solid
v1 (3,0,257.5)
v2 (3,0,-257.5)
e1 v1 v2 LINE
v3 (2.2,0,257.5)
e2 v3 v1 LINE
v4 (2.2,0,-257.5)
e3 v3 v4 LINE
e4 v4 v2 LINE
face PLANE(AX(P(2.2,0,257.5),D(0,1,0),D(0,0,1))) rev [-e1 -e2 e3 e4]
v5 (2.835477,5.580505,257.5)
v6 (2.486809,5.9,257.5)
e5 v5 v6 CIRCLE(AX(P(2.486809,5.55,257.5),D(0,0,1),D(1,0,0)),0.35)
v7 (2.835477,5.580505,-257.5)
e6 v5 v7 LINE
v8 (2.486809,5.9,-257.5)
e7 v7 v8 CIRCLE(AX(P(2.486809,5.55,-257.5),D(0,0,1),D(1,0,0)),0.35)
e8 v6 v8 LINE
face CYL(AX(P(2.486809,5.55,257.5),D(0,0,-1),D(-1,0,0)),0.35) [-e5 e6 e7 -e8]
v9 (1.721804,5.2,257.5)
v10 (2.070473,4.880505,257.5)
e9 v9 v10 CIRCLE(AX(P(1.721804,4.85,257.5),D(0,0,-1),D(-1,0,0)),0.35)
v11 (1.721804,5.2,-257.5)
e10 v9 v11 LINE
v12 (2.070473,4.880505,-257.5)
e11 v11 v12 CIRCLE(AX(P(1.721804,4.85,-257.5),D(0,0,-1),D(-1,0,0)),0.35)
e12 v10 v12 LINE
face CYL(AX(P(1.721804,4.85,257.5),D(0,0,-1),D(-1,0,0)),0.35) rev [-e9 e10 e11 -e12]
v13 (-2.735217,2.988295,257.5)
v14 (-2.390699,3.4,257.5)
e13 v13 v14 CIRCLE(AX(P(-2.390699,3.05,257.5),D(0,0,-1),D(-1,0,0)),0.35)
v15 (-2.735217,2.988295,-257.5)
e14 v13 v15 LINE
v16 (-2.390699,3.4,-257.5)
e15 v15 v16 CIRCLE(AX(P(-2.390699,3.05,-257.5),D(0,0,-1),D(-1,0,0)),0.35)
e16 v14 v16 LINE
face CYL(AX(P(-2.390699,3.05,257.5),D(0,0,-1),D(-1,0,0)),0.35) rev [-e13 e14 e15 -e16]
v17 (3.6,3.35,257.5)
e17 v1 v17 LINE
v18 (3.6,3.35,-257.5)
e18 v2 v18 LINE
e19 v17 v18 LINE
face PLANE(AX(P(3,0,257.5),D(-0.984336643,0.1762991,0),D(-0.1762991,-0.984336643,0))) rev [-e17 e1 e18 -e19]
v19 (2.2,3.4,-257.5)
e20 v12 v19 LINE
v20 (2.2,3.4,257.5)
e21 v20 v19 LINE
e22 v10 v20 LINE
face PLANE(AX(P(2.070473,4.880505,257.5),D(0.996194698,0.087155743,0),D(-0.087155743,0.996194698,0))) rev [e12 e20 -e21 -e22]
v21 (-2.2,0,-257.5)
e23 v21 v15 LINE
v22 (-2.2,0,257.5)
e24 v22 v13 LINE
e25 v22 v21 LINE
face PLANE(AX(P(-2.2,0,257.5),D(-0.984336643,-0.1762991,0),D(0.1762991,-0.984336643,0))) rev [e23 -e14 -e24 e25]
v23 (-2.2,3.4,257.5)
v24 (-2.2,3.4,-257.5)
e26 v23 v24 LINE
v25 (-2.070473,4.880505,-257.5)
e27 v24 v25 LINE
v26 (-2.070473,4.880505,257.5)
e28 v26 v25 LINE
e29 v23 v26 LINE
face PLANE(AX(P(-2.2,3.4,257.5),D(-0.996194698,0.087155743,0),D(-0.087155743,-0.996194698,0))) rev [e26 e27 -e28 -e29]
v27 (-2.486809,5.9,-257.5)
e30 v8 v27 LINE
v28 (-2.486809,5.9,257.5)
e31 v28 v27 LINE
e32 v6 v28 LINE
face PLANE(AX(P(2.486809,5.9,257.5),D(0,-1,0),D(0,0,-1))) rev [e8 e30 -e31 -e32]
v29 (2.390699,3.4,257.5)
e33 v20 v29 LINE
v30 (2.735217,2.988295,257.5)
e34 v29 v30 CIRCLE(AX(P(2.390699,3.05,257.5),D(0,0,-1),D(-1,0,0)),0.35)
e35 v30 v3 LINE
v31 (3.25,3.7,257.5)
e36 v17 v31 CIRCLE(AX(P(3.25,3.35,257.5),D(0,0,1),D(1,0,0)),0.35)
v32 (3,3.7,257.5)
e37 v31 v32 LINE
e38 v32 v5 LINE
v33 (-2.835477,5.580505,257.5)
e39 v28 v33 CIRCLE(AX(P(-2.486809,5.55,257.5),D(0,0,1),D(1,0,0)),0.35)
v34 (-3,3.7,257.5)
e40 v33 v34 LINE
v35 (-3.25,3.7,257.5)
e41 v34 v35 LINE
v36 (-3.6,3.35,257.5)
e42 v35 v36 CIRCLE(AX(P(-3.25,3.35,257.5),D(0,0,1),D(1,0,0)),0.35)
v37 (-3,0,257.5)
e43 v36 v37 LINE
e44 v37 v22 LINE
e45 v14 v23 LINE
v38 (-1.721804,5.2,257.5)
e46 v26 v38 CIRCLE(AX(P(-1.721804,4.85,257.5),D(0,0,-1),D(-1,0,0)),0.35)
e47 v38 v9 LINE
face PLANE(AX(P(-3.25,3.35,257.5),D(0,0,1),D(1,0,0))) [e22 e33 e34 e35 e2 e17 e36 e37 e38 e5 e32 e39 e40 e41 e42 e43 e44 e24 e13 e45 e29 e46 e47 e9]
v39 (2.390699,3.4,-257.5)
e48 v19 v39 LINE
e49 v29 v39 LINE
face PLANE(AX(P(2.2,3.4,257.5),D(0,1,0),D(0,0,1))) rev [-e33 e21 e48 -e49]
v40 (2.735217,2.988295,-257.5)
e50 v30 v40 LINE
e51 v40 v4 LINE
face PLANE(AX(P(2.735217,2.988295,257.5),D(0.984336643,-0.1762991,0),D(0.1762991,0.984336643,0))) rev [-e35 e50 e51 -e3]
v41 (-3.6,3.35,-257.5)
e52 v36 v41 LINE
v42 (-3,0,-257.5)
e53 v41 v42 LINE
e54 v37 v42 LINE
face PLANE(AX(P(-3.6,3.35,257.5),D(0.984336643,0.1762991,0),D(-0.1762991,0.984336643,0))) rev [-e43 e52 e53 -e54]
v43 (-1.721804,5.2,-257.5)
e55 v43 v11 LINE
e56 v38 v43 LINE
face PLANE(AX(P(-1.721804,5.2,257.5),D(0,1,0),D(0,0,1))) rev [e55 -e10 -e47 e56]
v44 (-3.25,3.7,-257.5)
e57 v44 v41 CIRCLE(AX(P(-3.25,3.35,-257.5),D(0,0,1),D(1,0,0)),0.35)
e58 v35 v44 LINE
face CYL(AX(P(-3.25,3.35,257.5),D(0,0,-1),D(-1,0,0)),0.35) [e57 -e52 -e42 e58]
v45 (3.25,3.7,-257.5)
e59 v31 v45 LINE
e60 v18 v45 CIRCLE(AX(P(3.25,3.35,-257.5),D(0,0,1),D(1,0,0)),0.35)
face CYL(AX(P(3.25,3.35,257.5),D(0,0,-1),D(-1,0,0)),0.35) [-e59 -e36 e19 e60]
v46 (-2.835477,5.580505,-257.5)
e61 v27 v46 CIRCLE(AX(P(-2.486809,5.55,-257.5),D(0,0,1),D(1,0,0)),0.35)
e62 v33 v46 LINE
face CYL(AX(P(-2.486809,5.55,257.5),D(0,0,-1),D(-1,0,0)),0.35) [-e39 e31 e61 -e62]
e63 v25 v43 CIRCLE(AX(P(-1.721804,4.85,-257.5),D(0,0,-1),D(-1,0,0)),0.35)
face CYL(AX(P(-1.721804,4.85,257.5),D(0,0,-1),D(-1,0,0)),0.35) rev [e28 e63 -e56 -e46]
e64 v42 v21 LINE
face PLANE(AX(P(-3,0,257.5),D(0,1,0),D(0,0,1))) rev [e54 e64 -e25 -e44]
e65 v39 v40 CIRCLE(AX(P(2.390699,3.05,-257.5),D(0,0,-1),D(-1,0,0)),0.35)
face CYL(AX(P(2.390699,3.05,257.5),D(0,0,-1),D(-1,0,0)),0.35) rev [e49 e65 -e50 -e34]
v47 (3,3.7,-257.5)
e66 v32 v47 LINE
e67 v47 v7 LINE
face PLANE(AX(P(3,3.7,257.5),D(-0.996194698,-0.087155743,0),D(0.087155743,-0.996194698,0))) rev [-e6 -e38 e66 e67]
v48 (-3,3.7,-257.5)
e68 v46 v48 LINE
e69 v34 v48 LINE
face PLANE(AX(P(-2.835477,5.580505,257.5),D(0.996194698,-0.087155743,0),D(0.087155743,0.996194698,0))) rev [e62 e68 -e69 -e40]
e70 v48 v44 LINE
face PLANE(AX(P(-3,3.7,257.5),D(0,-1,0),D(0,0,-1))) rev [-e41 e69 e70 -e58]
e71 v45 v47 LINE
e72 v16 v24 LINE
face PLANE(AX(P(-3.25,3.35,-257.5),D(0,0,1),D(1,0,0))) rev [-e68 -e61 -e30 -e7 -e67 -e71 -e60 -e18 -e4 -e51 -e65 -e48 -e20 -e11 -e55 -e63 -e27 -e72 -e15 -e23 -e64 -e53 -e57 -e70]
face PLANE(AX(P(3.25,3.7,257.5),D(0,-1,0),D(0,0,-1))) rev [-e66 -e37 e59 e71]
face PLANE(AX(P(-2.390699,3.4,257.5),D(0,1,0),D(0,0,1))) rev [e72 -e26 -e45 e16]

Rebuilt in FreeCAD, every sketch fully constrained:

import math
import FreeCAD as App
import Part
import Sketcher
from FreeCAD import Vector
Q = App.Units.Quantity

doc = App.newDocument("Part")
body = doc.addObject("PartDesign::Body", "Body")

# Sketch on XY plane
sketch1 = body.newObject("Sketcher::SketchObject", "Sketch")
sketch1.AttachmentSupport = (doc.getObject("XY_Plane"), [""])
sketch1.MapMode = "FlatFace"
sketch1.addGeometry(Part.LineSegment(Vector(-3.6, 3.35, 0), Vector(-3, 0, 0)), False)
sketch1.addGeometry(Part.LineSegment(Vector(-3, 0, 0), Vector(-2.2, 0, 0)), False)
sketch1.addGeometry(Part.LineSegment(Vector(-2.2, 0, 0), Vector(-2.74, 2.99, 0)), False)
sketch1.addGeometry(Part.ArcOfCircle(Part.Circle(Vector(-2.39, 3.05, 0), Vector(0, 0, 1), 0.35), math.radians(90), math.radians(190)), False)
sketch1.addGeometry(Part.LineSegment(Vector(-2.39, 3.4, 0), Vector(-2.2, 3.4, 0)), False)
sketch1.addGeometry(Part.LineSegment(Vector(-2.2, 3.4, 0), Vector(-2.07, 4.88, 0)), False)
sketch1.addGeometry(Part.ArcOfCircle(Part.Circle(Vector(-1.72, 4.85, 0), Vector(0, 0, 1), 0.35), math.radians(90), math.radians(175)), False)
sketch1.addGeometry(Part.LineSegment(Vector(-1.72, 5.2, 0), Vector(1.72, 5.2, 0)), False)
sketch1.addGeometry(Part.ArcOfCircle(Part.Circle(Vector(1.72, 4.85, 0), Vector(0, 0, 1), 0.35), math.radians(5), math.radians(90)), False)
sketch1.addGeometry(Part.LineSegment(Vector(2.07, 4.88, 0), Vector(2.2, 3.4, 0)), False)
sketch1.addGeometry(Part.LineSegment(Vector(2.2, 3.4, 0), Vector(2.39, 3.4, 0)), False)
sketch1.addGeometry(Part.ArcOfCircle(Part.Circle(Vector(2.39, 3.05, 0), Vector(0, 0, 1), 0.35), math.radians(-10), math.radians(90)), False)
sketch1.addGeometry(Part.LineSegment(Vector(2.74, 2.99, 0), Vector(2.2, 0, 0)), False)
sketch1.addGeometry(Part.LineSegment(Vector(2.2, 0, 0), Vector(3, 0, 0)), False)
sketch1.addGeometry(Part.LineSegment(Vector(3, 0, 0), Vector(3.6, 3.35, 0)), False)
sketch1.addGeometry(Part.ArcOfCircle(Part.Circle(Vector(3.25, 3.35, 0), Vector(0, 0, 1), 0.35), math.radians(0), math.radians(90)), False)
sketch1.addGeometry(Part.LineSegment(Vector(3.25, 3.7, 0), Vector(3, 3.7, 0)), False)
sketch1.addGeometry(Part.LineSegment(Vector(3, 3.7, 0), Vector(2.84, 5.58, 0)), False)
sketch1.addGeometry(Part.ArcOfCircle(Part.Circle(Vector(2.49, 5.55, 0), Vector(0, 0, 1), 0.35), math.radians(5), math.radians(90)), False)
sketch1.addGeometry(Part.LineSegment(Vector(2.49, 5.9, 0), Vector(-2.49, 5.9, 0)), False)
sketch1.addGeometry(Part.ArcOfCircle(Part.Circle(Vector(-2.49, 5.55, 0), Vector(0, 0, 1), 0.35), math.radians(90), math.radians(175)), False)
sketch1.addGeometry(Part.LineSegment(Vector(-2.84, 5.58, 0), Vector(-3, 3.7, 0)), False)
sketch1.addGeometry(Part.LineSegment(Vector(-3, 3.7, 0), Vector(-3.25, 3.7, 0)), False)
sketch1.addGeometry(Part.ArcOfCircle(Part.Circle(Vector(-3.25, 3.35, 0), Vector(0, 0, 1), 0.35), math.radians(90), math.radians(180)), False)
sketch1.addConstraint(Sketcher.Constraint("Coincident", 0, 2, 1, 1))
sketch1.addConstraint(Sketcher.Constraint("Coincident", 1, 2, 2, 1))
sketch1.addConstraint(Sketcher.Constraint("Tangent", 2, 2, 3, 2))
sketch1.addConstraint(Sketcher.Constraint("Tangent", 3, 1, 4, 1))
sketch1.addConstraint(Sketcher.Constraint("Coincident", 4, 2, 5, 1))
sketch1.addConstraint(Sketcher.Constraint("Tangent", 5, 2, 6, 2))
sketch1.addConstraint(Sketcher.Constraint("Tangent", 6, 1, 7, 1))
sketch1.addConstraint(Sketcher.Constraint("Tangent", 7, 2, 8, 2))
sketch1.addConstraint(Sketcher.Constraint("Tangent", 8, 1, 9, 1))
sketch1.addConstraint(Sketcher.Constraint("Coincident", 9, 2, 10, 1))
sketch1.addConstraint(Sketcher.Constraint("Tangent", 10, 2, 11, 2))
sketch1.addConstraint(Sketcher.Constraint("Tangent", 11, 1, 12, 1))
sketch1.addConstraint(Sketcher.Constraint("Coincident", 12, 2, 13, 1))
sketch1.addConstraint(Sketcher.Constraint("Coincident", 13, 2, 14, 1))
sketch1.addConstraint(Sketcher.Constraint("Coincident", 14, 2, 15, 1))
sketch1.addConstraint(Sketcher.Constraint("Tangent", 15, 2, 16, 1))
sketch1.addConstraint(Sketcher.Constraint("Coincident", 16, 2, 17, 1))
sketch1.addConstraint(Sketcher.Constraint("Tangent", 17, 2, 18, 1))
sketch1.addConstraint(Sketcher.Constraint("Tangent", 18, 2, 19, 1))
sketch1.addConstraint(Sketcher.Constraint("Tangent", 19, 2, 20, 1))
sketch1.addConstraint(Sketcher.Constraint("Tangent", 20, 2, 21, 1))
sketch1.addConstraint(Sketcher.Constraint("Coincident", 21, 2, 22, 1))
sketch1.addConstraint(Sketcher.Constraint("Tangent", 22, 2, 23, 1))
sketch1.addConstraint(Sketcher.Constraint("Coincident", 23, 2, 0, 1))
sketch1.addConstraint(Sketcher.Constraint("Horizontal", 1))
sketch1.addConstraint(Sketcher.Constraint("Horizontal", 4))
sketch1.addConstraint(Sketcher.Constraint("Horizontal", 7))
sketch1.addConstraint(Sketcher.Constraint("Horizontal", 10))
sketch1.addConstraint(Sketcher.Constraint("Horizontal", 13))
sketch1.addConstraint(Sketcher.Constraint("Horizontal", 16))
sketch1.addConstraint(Sketcher.Constraint("Horizontal", 19))
sketch1.addConstraint(Sketcher.Constraint("Horizontal", 22))
sketch1.addConstraint(Sketcher.Constraint("Equal", 3, 6))
sketch1.addConstraint(Sketcher.Constraint("Equal", 6, 8))
sketch1.addConstraint(Sketcher.Constraint("Equal", 8, 11))
sketch1.addConstraint(Sketcher.Constraint("Equal", 11, 15))
sketch1.addConstraint(Sketcher.Constraint("Equal", 15, 18))
sketch1.addConstraint(Sketcher.Constraint("Equal", 18, 20))
sketch1.addConstraint(Sketcher.Constraint("Equal", 20, 23))
sketch1.addConstraint(Sketcher.Constraint("Symmetric", 1, 2, 12, 2, -1, 1))
sketch1.addConstraint(Sketcher.Constraint("Symmetric", 3, 3, 11, 3, -2))
sketch1.addConstraint(Sketcher.Constraint("Symmetric", 15, 3, 23, 3, -2))
sketch1.addConstraint(Sketcher.Constraint("Symmetric", 5, 2, 8, 1, -2))
sketch1.addConstraint(Sketcher.Constraint("Symmetric", 0, 2, 13, 2, -2))
sketch1.addConstraint(Sketcher.Constraint("Symmetric", 17, 2, 20, 2, -2))
sketch1.addConstraint(Sketcher.Constraint("Parallel", 0, 2))
sketch1.addConstraint(Sketcher.Constraint("Parallel", 12, 14))
sketch1.addConstraint(Sketcher.Constraint("Parallel", 9, 17))
sketch1.addConstraint(Sketcher.Constraint("Horizontal", 23, 3, 14, 2))
sketch1.addConstraint(Sketcher.Constraint("Vertical", 1, 2, 4, 2))
sketch1.addConstraint(Sketcher.Constraint("Vertical", 13, 2, 16, 2))
sketch1.addConstraint(Sketcher.Constraint("Angle", 5, Q("85 deg")))
sketch1.addConstraint(Sketcher.Constraint("Radius", 3, 0.35))
sketch1.addConstraint(Sketcher.Constraint("DistanceX", 1, 1, 1, 2, 0.8))
sketch1.addConstraint(Sketcher.Constraint("DistanceX", 0, 2, -1, 1, 3.0))
sketch1.addConstraint(Sketcher.Constraint("DistanceX", 16, 2, 16, 1, 0.25))
sketch1.addConstraint(Sketcher.Constraint("DistanceY", -1, 1, 3, 1, 3.4))
sketch1.addConstraint(Sketcher.Constraint("DistanceY", -1, 1, 6, 1, 5.2))
sketch1.addConstraint(Sketcher.Constraint("DistanceY", -1, 1, 15, 2, 3.7))
sketch1.addConstraint(Sketcher.Constraint("DistanceY", -1, 1, 18, 2, 5.9))
pad1 = body.newObject("PartDesign::Pad", "Pad")
pad1.Profile = sketch1
pad1.Length = 515
pad1.Midplane = True

doc.recompute()
